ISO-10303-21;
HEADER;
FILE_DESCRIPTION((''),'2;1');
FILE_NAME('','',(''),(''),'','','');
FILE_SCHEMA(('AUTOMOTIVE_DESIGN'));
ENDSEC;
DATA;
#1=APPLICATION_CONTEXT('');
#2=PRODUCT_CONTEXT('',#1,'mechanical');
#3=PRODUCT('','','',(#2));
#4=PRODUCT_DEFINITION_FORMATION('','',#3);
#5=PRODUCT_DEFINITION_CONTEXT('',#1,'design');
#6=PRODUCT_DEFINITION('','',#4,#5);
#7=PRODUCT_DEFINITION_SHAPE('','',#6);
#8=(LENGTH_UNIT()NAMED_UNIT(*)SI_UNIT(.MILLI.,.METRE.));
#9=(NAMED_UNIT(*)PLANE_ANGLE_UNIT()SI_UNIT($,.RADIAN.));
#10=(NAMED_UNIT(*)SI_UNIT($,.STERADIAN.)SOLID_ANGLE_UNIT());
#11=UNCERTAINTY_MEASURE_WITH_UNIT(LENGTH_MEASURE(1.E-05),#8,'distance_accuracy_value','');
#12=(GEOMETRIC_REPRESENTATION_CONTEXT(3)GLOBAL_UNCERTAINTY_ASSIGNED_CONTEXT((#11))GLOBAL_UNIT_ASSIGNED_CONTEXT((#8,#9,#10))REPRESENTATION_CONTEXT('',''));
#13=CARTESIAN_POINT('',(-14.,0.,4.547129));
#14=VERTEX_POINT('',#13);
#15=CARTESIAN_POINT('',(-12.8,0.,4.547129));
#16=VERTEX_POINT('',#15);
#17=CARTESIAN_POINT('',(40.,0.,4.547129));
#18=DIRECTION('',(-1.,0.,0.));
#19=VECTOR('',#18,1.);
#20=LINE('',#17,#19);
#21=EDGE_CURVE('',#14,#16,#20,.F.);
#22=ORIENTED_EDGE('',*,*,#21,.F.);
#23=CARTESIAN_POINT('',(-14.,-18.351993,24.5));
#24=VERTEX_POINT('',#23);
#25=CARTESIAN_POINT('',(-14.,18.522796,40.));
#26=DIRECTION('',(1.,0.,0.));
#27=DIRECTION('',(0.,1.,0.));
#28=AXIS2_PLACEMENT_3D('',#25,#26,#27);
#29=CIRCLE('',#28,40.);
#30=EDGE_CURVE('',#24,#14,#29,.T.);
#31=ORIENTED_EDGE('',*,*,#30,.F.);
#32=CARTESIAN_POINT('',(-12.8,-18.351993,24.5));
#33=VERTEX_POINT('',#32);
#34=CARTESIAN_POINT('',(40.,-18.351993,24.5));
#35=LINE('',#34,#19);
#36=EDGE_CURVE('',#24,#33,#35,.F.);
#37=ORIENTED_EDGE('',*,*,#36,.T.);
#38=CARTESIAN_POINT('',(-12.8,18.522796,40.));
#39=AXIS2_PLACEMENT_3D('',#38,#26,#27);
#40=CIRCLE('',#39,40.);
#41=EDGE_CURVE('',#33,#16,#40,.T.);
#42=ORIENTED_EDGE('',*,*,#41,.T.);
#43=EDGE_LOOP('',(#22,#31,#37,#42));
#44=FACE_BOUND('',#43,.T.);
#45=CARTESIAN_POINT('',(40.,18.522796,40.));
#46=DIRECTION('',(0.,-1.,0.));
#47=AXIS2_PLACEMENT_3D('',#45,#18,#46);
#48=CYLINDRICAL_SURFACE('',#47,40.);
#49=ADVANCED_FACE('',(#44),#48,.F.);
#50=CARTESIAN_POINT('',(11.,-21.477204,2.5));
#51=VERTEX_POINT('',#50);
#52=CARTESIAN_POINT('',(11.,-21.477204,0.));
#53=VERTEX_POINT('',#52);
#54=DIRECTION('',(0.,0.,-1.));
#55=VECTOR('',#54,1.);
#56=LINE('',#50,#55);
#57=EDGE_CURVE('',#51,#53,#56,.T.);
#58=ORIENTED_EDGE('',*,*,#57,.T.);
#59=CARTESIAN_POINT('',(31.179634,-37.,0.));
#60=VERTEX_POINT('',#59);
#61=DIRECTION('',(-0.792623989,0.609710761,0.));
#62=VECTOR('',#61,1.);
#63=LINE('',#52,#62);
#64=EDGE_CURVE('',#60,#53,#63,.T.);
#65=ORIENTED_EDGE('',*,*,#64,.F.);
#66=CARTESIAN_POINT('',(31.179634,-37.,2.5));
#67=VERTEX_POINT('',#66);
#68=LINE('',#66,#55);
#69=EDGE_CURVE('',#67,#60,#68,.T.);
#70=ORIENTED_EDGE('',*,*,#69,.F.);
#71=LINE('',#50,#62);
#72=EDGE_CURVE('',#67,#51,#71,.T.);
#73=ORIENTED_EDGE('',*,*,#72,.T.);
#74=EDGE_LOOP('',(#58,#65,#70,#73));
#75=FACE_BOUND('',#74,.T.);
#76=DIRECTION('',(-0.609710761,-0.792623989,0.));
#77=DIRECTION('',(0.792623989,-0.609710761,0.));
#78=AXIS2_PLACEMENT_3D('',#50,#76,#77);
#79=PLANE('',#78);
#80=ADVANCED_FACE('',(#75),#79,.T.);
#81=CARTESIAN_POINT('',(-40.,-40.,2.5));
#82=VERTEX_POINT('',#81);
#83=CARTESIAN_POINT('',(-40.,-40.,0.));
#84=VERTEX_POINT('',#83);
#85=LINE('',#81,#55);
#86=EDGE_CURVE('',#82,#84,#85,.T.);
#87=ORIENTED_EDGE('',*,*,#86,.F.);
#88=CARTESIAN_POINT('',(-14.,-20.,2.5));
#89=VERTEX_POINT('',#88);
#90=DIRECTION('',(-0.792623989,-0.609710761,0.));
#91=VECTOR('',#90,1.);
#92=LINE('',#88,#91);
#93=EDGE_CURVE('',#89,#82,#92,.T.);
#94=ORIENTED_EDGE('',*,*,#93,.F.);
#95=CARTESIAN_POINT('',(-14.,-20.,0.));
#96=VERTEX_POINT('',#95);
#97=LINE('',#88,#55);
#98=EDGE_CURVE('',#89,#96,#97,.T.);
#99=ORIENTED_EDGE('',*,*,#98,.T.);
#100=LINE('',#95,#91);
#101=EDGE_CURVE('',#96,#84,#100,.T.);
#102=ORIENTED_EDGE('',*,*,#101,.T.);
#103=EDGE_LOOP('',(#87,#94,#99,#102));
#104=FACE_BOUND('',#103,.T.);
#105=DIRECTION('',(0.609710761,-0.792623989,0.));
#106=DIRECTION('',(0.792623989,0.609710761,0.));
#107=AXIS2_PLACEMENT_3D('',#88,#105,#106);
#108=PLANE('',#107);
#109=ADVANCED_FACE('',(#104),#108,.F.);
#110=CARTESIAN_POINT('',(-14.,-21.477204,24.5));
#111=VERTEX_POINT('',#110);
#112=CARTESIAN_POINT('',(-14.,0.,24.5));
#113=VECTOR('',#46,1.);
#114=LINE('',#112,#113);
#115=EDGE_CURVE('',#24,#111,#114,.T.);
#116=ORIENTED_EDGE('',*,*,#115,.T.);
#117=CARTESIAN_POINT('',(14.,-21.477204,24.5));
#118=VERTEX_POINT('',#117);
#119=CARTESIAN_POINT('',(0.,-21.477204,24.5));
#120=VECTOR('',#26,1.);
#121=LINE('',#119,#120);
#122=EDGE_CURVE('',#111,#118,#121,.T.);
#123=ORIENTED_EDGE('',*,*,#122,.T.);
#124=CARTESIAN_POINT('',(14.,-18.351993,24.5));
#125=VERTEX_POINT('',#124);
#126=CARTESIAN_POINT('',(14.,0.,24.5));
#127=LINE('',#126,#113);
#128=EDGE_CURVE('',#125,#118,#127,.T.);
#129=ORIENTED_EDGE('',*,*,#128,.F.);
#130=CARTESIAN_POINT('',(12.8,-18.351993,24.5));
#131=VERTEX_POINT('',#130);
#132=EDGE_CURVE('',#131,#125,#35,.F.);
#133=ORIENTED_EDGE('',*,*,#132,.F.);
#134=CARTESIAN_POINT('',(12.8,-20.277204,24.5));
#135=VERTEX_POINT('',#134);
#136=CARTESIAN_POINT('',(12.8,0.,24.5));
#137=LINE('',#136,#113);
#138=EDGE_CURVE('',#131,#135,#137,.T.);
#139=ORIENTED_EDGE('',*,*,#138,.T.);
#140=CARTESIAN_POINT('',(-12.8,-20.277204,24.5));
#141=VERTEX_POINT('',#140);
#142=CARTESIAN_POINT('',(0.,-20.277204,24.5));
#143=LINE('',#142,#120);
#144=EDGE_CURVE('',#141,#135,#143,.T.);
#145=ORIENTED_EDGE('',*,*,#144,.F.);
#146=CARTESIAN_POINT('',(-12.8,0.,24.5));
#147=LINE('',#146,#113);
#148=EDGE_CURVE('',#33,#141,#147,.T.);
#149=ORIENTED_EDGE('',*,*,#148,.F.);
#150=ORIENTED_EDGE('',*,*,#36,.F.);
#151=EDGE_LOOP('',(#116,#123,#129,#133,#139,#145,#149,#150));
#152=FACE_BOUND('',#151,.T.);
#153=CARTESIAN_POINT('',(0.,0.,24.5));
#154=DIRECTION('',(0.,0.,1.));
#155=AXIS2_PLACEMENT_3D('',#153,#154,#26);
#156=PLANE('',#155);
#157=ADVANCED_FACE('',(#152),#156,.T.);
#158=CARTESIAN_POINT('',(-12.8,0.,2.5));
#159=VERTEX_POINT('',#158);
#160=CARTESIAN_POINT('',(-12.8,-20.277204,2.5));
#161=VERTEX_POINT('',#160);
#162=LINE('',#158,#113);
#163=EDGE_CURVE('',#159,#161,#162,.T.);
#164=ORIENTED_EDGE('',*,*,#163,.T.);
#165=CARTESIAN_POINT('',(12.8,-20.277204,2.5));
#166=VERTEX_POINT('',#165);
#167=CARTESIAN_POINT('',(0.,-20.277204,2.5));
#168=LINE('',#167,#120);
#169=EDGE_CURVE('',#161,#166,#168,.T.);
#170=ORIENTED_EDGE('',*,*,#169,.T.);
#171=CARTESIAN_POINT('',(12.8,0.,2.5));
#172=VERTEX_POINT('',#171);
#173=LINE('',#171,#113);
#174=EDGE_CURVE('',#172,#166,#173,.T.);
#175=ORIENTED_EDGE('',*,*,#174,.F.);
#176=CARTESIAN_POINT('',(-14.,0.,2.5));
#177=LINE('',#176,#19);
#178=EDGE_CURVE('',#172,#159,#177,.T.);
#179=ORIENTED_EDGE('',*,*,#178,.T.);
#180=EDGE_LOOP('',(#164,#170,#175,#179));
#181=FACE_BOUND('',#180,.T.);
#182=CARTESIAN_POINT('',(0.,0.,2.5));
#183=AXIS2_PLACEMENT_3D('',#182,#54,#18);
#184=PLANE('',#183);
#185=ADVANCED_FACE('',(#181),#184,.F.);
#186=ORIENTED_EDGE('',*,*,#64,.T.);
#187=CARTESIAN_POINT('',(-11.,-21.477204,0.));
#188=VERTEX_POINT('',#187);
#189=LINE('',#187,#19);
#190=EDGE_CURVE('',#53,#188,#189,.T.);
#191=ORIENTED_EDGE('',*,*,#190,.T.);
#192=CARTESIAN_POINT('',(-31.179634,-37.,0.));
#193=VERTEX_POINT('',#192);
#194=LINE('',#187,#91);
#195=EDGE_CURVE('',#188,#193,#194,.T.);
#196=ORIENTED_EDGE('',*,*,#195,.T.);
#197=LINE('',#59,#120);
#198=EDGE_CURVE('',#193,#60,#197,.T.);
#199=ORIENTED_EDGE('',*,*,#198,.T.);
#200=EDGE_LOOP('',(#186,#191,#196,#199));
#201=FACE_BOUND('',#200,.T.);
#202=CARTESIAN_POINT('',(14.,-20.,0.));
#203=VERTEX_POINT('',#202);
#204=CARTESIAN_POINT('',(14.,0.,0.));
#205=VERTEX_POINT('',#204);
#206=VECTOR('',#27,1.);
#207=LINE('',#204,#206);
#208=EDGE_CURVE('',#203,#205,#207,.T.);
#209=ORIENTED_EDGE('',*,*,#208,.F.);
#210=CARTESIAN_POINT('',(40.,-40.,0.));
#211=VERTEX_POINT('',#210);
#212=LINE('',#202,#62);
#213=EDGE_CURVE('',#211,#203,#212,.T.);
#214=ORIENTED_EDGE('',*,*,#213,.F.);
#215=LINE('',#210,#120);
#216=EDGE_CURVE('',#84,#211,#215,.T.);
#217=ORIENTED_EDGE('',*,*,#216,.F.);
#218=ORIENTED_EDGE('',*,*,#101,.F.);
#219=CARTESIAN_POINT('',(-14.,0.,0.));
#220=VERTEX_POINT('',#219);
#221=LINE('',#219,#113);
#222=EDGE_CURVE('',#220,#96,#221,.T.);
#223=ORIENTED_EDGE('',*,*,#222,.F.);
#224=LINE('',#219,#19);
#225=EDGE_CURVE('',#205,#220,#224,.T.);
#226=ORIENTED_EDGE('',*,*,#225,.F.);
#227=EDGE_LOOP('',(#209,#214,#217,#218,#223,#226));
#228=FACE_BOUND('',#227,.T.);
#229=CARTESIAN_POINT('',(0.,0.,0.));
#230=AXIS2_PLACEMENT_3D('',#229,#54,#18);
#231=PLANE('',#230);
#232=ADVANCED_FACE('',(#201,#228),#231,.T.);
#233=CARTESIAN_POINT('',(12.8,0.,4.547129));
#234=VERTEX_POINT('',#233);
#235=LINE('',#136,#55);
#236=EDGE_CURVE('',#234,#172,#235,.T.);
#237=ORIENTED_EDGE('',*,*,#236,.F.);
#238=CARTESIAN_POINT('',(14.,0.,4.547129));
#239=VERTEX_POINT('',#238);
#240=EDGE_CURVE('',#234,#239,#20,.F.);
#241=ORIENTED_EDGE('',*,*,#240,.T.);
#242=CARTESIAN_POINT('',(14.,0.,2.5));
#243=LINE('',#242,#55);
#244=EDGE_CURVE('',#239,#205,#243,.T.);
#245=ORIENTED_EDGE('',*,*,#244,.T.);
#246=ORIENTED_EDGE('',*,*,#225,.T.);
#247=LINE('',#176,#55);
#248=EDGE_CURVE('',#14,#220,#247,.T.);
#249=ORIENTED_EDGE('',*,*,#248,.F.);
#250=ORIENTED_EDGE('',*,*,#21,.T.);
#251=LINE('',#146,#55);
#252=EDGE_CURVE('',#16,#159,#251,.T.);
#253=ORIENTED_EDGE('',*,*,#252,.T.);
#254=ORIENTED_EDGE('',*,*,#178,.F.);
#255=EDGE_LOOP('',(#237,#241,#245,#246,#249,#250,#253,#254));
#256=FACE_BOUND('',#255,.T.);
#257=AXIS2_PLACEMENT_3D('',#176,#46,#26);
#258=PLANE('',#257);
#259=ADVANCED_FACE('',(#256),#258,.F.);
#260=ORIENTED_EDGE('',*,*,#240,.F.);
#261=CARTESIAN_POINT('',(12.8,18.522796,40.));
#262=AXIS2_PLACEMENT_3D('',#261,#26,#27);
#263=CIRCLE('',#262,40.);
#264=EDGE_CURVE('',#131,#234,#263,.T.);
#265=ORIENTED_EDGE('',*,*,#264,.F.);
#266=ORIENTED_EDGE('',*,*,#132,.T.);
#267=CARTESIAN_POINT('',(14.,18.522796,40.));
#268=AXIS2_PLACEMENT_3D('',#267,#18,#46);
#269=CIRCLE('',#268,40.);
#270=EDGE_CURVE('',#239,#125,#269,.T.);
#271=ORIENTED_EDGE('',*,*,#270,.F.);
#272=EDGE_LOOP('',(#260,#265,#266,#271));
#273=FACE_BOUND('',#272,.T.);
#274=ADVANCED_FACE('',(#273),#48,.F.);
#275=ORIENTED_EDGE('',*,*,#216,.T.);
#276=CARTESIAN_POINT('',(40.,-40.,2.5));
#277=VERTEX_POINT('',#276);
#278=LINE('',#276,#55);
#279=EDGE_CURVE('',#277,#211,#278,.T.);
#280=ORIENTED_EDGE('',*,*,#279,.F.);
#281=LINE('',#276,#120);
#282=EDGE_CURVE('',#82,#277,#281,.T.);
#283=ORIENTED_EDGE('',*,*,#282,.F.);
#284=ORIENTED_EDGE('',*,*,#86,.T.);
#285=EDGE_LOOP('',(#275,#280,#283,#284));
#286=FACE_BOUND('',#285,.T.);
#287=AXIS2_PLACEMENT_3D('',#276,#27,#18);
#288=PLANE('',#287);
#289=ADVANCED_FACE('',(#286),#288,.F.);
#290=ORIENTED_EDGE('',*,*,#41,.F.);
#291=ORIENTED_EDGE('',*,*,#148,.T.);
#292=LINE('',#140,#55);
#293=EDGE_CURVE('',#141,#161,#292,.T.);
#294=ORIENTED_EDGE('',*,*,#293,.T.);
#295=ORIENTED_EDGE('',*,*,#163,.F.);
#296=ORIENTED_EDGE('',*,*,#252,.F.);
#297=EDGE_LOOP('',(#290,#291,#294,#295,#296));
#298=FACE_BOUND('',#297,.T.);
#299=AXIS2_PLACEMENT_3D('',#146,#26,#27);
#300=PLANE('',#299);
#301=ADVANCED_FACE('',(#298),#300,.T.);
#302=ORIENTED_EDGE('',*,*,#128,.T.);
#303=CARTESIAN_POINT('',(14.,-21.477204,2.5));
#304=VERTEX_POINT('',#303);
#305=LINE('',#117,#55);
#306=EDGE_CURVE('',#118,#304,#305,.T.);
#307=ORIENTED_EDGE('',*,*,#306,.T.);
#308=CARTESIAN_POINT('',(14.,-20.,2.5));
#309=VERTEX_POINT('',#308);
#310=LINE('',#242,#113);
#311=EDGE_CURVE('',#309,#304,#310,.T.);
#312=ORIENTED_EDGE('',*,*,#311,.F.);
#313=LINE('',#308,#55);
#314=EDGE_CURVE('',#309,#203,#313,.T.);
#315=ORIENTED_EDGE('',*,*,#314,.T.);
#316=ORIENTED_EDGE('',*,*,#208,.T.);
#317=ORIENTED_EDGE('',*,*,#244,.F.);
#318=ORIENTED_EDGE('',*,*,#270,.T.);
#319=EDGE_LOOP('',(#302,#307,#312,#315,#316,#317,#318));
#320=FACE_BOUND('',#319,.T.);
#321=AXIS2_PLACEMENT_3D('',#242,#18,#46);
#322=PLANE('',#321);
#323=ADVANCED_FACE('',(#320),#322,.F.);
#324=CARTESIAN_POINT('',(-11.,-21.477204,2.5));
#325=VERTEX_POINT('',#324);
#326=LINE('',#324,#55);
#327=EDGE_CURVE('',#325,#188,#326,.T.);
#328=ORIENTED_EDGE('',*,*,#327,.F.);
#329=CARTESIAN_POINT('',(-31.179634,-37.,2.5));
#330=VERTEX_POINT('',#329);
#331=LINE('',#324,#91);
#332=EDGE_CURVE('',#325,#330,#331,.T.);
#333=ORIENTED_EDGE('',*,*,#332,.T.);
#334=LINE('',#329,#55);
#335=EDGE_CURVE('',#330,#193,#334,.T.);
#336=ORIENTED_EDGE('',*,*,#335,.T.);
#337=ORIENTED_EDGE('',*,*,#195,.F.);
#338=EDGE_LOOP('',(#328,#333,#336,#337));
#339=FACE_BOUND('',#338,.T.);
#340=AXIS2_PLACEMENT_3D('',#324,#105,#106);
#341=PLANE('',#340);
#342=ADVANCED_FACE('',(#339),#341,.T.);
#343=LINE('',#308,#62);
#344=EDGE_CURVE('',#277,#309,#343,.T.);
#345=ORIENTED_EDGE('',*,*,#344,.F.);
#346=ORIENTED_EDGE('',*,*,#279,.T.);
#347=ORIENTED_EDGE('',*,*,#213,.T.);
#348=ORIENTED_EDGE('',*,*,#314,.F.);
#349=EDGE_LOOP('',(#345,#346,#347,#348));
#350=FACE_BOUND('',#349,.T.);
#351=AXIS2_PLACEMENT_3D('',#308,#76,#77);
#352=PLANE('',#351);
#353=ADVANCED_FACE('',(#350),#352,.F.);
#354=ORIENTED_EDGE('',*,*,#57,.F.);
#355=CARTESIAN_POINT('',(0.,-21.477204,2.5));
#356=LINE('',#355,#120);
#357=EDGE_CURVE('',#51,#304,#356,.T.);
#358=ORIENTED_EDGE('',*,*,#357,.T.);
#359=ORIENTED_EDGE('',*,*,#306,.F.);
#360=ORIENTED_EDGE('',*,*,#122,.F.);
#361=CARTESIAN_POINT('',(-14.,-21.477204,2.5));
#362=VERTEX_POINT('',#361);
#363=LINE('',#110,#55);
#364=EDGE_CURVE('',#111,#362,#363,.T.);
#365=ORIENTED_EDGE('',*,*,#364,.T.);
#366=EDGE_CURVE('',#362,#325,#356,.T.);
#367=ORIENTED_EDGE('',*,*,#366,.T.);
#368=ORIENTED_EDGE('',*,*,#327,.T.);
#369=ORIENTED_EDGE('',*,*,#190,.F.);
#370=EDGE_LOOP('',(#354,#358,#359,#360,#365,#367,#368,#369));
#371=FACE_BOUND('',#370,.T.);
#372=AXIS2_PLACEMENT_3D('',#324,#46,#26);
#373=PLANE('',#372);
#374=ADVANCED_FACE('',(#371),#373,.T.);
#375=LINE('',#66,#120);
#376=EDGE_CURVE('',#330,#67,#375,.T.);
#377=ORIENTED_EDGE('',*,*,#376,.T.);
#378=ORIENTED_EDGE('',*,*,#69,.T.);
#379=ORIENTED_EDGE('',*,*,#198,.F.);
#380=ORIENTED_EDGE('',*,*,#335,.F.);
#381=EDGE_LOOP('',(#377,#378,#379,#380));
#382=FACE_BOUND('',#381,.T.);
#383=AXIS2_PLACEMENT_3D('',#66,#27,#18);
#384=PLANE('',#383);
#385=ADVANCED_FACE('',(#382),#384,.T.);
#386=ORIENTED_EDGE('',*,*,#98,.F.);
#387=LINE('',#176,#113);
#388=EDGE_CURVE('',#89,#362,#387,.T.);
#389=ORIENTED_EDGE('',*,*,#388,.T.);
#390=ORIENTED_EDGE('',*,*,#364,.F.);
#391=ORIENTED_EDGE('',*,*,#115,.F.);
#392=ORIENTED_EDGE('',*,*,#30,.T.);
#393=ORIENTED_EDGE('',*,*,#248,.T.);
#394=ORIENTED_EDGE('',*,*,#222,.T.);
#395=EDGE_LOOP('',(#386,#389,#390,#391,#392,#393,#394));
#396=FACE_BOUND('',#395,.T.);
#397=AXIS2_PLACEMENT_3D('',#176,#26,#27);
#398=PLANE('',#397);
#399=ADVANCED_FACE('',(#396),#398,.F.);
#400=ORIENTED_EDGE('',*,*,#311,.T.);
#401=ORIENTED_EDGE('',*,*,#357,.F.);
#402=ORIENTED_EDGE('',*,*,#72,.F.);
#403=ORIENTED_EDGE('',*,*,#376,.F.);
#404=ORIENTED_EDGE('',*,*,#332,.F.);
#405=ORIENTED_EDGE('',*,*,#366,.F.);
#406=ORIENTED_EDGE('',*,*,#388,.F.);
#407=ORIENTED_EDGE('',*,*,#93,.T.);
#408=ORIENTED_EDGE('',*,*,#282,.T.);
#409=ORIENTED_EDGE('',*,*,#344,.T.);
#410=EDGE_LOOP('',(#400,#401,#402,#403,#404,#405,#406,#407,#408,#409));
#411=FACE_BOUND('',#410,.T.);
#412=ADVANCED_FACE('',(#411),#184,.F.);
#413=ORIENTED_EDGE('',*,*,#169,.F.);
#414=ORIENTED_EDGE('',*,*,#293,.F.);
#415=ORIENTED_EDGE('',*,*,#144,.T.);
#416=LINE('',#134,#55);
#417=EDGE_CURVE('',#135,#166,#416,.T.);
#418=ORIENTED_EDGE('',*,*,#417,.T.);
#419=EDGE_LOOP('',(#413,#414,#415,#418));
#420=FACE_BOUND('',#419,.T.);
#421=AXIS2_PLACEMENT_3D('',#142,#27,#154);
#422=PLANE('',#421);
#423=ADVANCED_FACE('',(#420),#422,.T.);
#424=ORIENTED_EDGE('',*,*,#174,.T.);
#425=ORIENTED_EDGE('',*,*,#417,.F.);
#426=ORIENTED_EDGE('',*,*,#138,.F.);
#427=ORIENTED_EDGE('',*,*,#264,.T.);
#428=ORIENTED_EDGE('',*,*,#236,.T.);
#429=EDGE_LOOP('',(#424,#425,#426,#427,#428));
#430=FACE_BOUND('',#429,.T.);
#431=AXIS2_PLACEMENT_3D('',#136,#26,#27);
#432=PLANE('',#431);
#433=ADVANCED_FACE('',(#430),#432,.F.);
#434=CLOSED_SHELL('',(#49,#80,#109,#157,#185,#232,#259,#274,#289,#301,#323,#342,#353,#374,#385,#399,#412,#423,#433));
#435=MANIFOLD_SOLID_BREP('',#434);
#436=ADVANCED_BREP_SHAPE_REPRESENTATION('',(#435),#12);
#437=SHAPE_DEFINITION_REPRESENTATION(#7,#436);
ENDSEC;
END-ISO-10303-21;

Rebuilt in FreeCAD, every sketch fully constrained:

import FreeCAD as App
import Part
import Sketcher
from FreeCAD import Vector
Q = App.Units.Quantity


def add_polygon(sketch, points):
    """Adds a closed chain of lines whose ends are joined by coincident constraints."""
    first, n = sketch.GeometryCount, len(points)
    for a, b in zip(points, points[1:] + points[:1]):
        sketch.addGeometry(Part.LineSegment(App.Vector(*a, 0), App.Vector(*b, 0)), False)
    for i in range(n):
        sketch.addConstraint(Sketcher.Constraint("Coincident", first + i, 2, first + (i + 1) % n, 1))

doc = App.newDocument("Part")
params = doc.addObject("Spreadsheet::Sheet", "Params")
for row, (alias, value) in enumerate([
    ("sketch1_width", "28 mm"),
    ("sketch1_width2", "80 mm"),
    ("sketch1_width3", "22 mm"),
    ("sketch1_height", "20 mm"),
    ("pad1_length", "2.5 mm"),
    ("sketch2_width", "28 mm"),
    ("sketch2_width2", "1.2 mm"),
    ("pad2_length", "22 mm"),
    ("sketch3_diameter", "80 mm"),
], start=1):
    params.set(f"A{row}", alias)
    params.set(f"B{row}", "=" + value)
    params.setAlias(f"B{row}", alias)

body = doc.addObject("PartDesign::Body", "Body")

sketch1 = body.newObject("Sketcher::SketchObject", "Sketch")
sketch1.AttachmentSupport = (doc.getObject("XY_Plane"), [""])
sketch1.MapMode = "FlatFace"
add_polygon(sketch1, [(14, 0), (-14, 0), (-14, -20), (-40, -40), (40, -40), (14, -20)])
add_polygon(sketch1, [(-11, -21), (11, -21), (31, -37), (-31, -37)])
sketch1.addConstraint([
    Sketcher.Constraint("Horizontal", 0),
    Sketcher.Constraint("Vertical", 1),
    Sketcher.Constraint("Horizontal", 3),
    Sketcher.Constraint("Vertical", 5),
    Sketcher.Constraint("Horizontal", 6),
    Sketcher.Constraint("Horizontal", 8),
    Sketcher.Constraint("Symmetric", 0, 2, 5, 2, -1, 1),
    Sketcher.Constraint("Parallel", 4, 7),
    Sketcher.Constraint("Parallel", 2, 9),
    Sketcher.Constraint("Horizontal", 1, 2, 4, 2),
    Sketcher.Constraint("Equal", 2, 4),
    Sketcher.Constraint("DistanceX", 0, 2, 0, 1, Q("28 mm")),
    Sketcher.Constraint("DistanceX", 3, 1, 3, 2, Q("80 mm")),
    Sketcher.Constraint("DistanceX", 6, 1, 6, 2, Q("22 mm")),
    Sketcher.Constraint("DistanceY", 1, 2, 1, 1, Q("20 mm")),
    Sketcher.Constraint("DistanceY", 2, 2, -1, 1, Q("40 mm")),
    Sketcher.Constraint("DistanceX", -1, 1, 6, 2, Q("11 mm")),
    Sketcher.Constraint("DistanceY", 7, 2, -1, 1, Q("37 mm")),
    Sketcher.Constraint("DistanceX", 8, 2, 8, 1, Q("62.359268 mm")),
])
sketch1.setExpression("Constraints[21]", "Params.sketch1_width")
sketch1.setExpression("Constraints[22]", "Params.sketch1_width2")
sketch1.setExpression("Constraints[23]", "Params.sketch1_width3")
sketch1.setExpression("Constraints[24]", "Params.sketch1_height")
pad1 = body.newObject("PartDesign::Pad", "Pad")
pad1.Profile = sketch1
pad1.setExpression("Length", "Params.pad1_length")

sketch2 = body.newObject("Sketcher::SketchObject", "Sketch001")
sketch2.AttachmentSupport = (doc.getObject("XY_Plane"), [""])
sketch2.MapMode = "FlatFace"
sketch2.AttachmentOffset = App.Placement(Vector(0, 0, 2.5), App.Rotation())
add_polygon(sketch2, [(-12.8, 0), (-14, 0), (-14, -21.5), (14, -21.5), (14, 0), (12.8, 0), (12.8, -20.3), (-12.8, -20.3)])
sketch2.addConstraint([
    Sketcher.Constraint("Horizontal", 0),
    Sketcher.Constraint("Vertical", 1),
    Sketcher.Constraint("Horizontal", 2),
    Sketcher.Constraint("Vertical", 3),
    Sketcher.Constraint("Horizontal", 4),
    Sketcher.Constraint("Vertical", 5),
    Sketcher.Constraint("Horizontal", 6),
    Sketcher.Constraint("Vertical", 7),
    Sketcher.Constraint("Symmetric", 0, 2, 3, 2, -1, 1),
    Sketcher.Constraint("Symmetric", 4, 2, 7, 2, -2),
    Sketcher.Constraint("DistanceX", 2, 1, 2, 2, Q("28 mm")),
    Sketcher.Constraint("DistanceX", 0, 2, 0, 1, Q("1.2 mm")),
    Sketcher.Constraint("DistanceY", 2, 2, 5, 2, Q("1.2 mm")),
    Sketcher.Constraint("DistanceY", 1, 2, 1, 1, Q("21.477204 mm")),
])
sketch2.setExpression("Constraints[18]", "Params.sketch2_width")
sketch2.setExpression("Constraints[19]", "Params.sketch2_width2")
pad2 = body.newObject("PartDesign::Pad", "Pad001")
pad2.Profile = sketch2
pad2.setExpression("Length", "Params.pad2_length")

sketch3 = body.newObject("Sketcher::SketchObject", "Sketch002")
sketch3.AttachmentSupport = (doc.getObject("YZ_Plane"), [""])
sketch3.MapMode = "FlatFace"
sketch3.AttachmentOffset = App.Placement(Vector(0, 0, -14), App.Rotation())
sketch3.addGeometry(Part.Circle(Vector(19, 40, 0), Vector(0, 0, 1), 40), False)
sketch3.addConstraint([
    Sketcher.Constraint("Diameter", 0, Q("80 mm")),
    Sketcher.Constraint("DistanceY", -1, 1, 0, 3, Q("40 mm")),
    Sketcher.Constraint("DistanceX", -1, 1, 0, 3, Q("18.522796 mm")),
])
sketch3.setExpression("Constraints[0]", "Params.sketch3_diameter")
pocket1 = body.newObject("PartDesign::Pocket", "Pocket")
pocket1.Profile = sketch3
pocket1.Type = "ThroughAll"
pocket1.Midplane = True

doc.recompute()
